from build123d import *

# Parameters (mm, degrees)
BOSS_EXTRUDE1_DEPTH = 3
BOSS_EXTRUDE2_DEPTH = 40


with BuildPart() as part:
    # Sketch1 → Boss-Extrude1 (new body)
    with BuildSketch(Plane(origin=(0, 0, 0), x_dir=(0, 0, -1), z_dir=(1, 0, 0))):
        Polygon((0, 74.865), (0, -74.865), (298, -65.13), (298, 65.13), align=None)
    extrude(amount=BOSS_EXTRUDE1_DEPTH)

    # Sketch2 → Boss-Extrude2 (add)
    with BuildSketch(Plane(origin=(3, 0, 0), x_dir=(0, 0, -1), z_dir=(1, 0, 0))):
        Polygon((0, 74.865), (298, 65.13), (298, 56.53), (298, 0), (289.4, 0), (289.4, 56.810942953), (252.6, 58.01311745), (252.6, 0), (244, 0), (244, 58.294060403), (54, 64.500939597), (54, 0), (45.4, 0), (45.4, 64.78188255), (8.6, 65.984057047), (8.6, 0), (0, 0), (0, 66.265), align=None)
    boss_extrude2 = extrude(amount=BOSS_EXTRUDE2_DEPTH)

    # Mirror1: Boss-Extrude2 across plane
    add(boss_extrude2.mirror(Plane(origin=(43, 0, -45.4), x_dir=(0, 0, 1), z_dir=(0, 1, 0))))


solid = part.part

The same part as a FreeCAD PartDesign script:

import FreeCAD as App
import Part
import Sketcher

V = App.Vector
Q = App.Units.Quantity

doc = App.newDocument("Part")
body = doc.addObject("PartDesign::Body", "Body")

sketch1 = doc.addObject("Sketcher::SketchObject", "Sketch")
body.addObject(sketch1)
sketch1.AttachmentSupport = (doc.YZ_Plane, [""])
sketch1.MapMode = "FlatFace"
sketch1.addGeometry([
    Part.LineSegment(V(75, 0, 0), V(-75, 0, 0)),
    Part.LineSegment(V(-75, 0, 0), V(-65, -298, 0)),
    Part.LineSegment(V(-65, -298, 0), V(65, -298, 0)),
    Part.LineSegment(V(65, -298, 0), V(75, 0, 0)),
], False)
sketch1.addConstraint([
    Sketcher.Constraint("Coincident", 0, 2, 1, 1),
    Sketcher.Constraint("Coincident", 1, 2, 2, 1),
    Sketcher.Constraint("Coincident", 2, 2, 3, 1),
    Sketcher.Constraint("Coincident", 3, 2, 0, 1),
    Sketcher.Constraint("Horizontal", 0),
    Sketcher.Constraint("Horizontal", 2),
    Sketcher.Constraint("Symmetric", 0, 2, 3, 2, -1, 1),
    Sketcher.Constraint("Equal", 1, 3),
    Sketcher.Constraint("DistanceY", 1, 2, -1, 1, Q("298 mm")),
    Sketcher.Constraint("DistanceX", 0, 2, 0, 1, Q("149.73 mm")),
    Sketcher.Constraint("DistanceX", 2, 1, 2, 2, Q("130.26 mm")),
])
pad1 = doc.addObject("PartDesign::Pad", "Pad")
body.addObject(pad1)
pad1.Profile = sketch1
pad1.Length = 3

sketch2 = doc.addObject("Sketcher::SketchObject", "Sketch001")
body.addObject(sketch2)
sketch2.AttachmentSupport = (doc.YZ_Plane, [""])
sketch2.MapMode = "FlatFace"
sketch2.AttachmentOffset = App.Placement(V(0, 0, 3), App.Rotation())
sketch2.addGeometry([
    Part.LineSegment(V(65, -298, 0), V(75, 0, 0)),
    Part.LineSegment(V(75, 0, 0), V(0, 0, 0)),
    Part.LineSegment(V(0, 0, 0), V(0, -9, 0)),
    Part.LineSegment(V(0, -9, 0), V(66, -9, 0)),
    Part.LineSegment(V(66, -9, 0), V(65, -45, 0)),
    Part.LineSegment(V(65, -45, 0), V(0, -45, 0)),
    Part.LineSegment(V(0, -45, 0), V(0, -54, 0)),
    Part.LineSegment(V(0, -54, 0), V(65, -54, 0)),
    Part.LineSegment(V(65, -54, 0), V(58, -244, 0)),
    Part.LineSegment(V(58, -244, 0), V(0, -244, 0)),
    Part.LineSegment(V(0, -244, 0), V(0, -253, 0)),
    Part.LineSegment(V(0, -253, 0), V(58, -253, 0)),
    Part.LineSegment(V(58, -253, 0), V(57, -289, 0)),
    Part.LineSegment(V(57, -289, 0), V(0, -289, 0)),
    Part.LineSegment(V(0, -289, 0), V(0, -298, 0)),
    Part.LineSegment(V(0, -298, 0), V(65, -298, 0)),
], False)
sketch2.addConstraint([
    Sketcher.Constraint("Coincident", 0, 2, 1, 1),
    Sketcher.Constraint("Coincident", 1, 2, 2, 1),
    Sketcher.Constraint("Coincident", 2, 2, 3, 1),
    Sketcher.Constraint("Coincident", 3, 2, 4, 1),
    Sketcher.Constraint("Coincident", 4, 2, 5, 1),
    Sketcher.Constraint("Coincident", 5, 2, 6, 1),
    Sketcher.Constraint("Coincident", 6, 2, 7, 1),
    Sketcher.Constraint("Coincident", 7, 2, 8, 1),
    Sketcher.Constraint("Coincident", 8, 2, 9, 1),
    Sketcher.Constraint("Coincident", 9, 2, 10, 1),
    Sketcher.Constraint("Coincident", 10, 2, 11, 1),
    Sketcher.Constraint("Coincident", 11, 2, 12, 1),
    Sketcher.Constraint("Coincident", 12, 2, 13, 1),
    Sketcher.Constraint("Coincident", 13, 2, 14, 1),
    Sketcher.Constraint("Coincident", 14, 2, 15, 1),
    Sketcher.Constraint("Coincident", 15, 2, 0, 1),
    Sketcher.Constraint("Horizontal", 1),
    Sketcher.Constraint("Vertical", 2),
    Sketcher.Constraint("Horizontal", 3),
    Sketcher.Constraint("Horizontal", 5),
    Sketcher.Constraint("Vertical", 6),
    Sketcher.Constraint("Horizontal", 7),
    Sketcher.Constraint("Horizontal", 9),
    Sketcher.Constraint("Vertical", 10),
    Sketcher.Constraint("Horizontal", 11),
    Sketcher.Constraint("Horizontal", 13),
    Sketcher.Constraint("Vertical", 14),
    Sketcher.Constraint("Horizontal", 15),
    Sketcher.Constraint("Coincident", 1, 2, -1, 1),
    Sketcher.Constraint("PointOnObject", 5, 2, -2),
    Sketcher.Constraint("PointOnObject", 9, 2, -2),
    Sketcher.Constraint("PointOnObject", 13, 2, -2),
    Sketcher.Constraint("Parallel", 0, 4),
    Sketcher.Constraint("Parallel", 4, 8),
    Sketcher.Constraint("Parallel", 8, 12),
    Sketcher.Constraint("Equal", 2, 6),
    Sketcher.Constraint("Equal", 6, 10),
    Sketcher.Constraint("Equal", 10, 14),
    Sketcher.Constraint("Equal", 4, 12),
    Sketcher.Constraint("DistanceY", 2, 2, 2, 1, Q("8.6 mm")),
    Sketcher.Constraint("DistanceY", 6, 2, -1, 1, Q("54 mm")),
    Sketcher.Constraint("DistanceY", 8, 2, -1, 1, Q("244 mm")),
    Sketcher.Constraint("DistanceX", 15, 1, 15, 2, Q("65.13 mm")),
    Sketcher.Constraint("DistanceX", 1, 2, 1, 1, Q("74.865 mm")),
    Sketcher.Constraint("DistanceX", 7, 1, 7, 2, Q("64.50094 mm")),
    Sketcher.Constraint("DistanceX", 3, 1, 3, 2, Q("65.984057 mm")),
    Sketcher.Constraint("DistanceX", 11, 1, 11, 2, Q("58.013117 mm")),
])
pad2 = doc.addObject("PartDesign::Pad", "Pad001")
body.addObject(pad2)
pad2.Profile = sketch2
pad2.Length = 40
doc.recompute()

mirrored = doc.addObject("PartDesign::Mirrored", "Mirrored")
body.addObject(mirrored)
mirrored.Originals = [pad2]
mirrored.MirrorPlane = (doc.XZ_Plane, [""])
body.Tip = mirrored

doc.recompute()
